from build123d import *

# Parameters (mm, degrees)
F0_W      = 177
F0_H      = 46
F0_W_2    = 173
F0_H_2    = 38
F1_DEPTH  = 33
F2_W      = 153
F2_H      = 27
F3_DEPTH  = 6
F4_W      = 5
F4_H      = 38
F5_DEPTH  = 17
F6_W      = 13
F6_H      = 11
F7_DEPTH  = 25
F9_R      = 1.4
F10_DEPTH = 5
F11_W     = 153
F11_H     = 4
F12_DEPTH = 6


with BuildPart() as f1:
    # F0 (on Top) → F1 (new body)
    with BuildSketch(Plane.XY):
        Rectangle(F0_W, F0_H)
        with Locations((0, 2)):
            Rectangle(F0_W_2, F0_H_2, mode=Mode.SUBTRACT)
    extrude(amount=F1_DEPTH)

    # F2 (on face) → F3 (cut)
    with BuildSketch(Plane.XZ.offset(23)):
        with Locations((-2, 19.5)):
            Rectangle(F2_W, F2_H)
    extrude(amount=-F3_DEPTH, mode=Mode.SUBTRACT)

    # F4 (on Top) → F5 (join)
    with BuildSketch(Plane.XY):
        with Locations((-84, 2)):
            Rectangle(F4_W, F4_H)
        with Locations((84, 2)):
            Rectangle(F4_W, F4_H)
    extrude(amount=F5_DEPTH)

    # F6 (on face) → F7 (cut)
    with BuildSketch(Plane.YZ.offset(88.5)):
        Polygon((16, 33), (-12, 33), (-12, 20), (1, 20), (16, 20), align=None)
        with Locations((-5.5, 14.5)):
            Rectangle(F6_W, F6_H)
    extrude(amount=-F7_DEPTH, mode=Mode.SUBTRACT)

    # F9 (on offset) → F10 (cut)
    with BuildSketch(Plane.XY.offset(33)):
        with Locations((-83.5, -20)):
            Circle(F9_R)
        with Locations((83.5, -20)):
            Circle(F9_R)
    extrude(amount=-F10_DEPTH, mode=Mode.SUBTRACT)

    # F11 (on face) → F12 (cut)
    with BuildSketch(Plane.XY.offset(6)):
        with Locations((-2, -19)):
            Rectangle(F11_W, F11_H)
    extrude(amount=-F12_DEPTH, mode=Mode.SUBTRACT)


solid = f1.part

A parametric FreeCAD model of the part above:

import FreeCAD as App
import Part
import Sketcher
from FreeCAD import Vector
Q = App.Units.Quantity


def add_polygon(sketch, points):
    """Adds a closed chain of lines whose ends are joined by coincident constraints."""
    first, n = sketch.GeometryCount, len(points)
    for a, b in zip(points, points[1:] + points[:1]):
        sketch.addGeometry(Part.LineSegment(App.Vector(*a, 0), App.Vector(*b, 0)), False)
    for i in range(n):
        sketch.addConstraint(Sketcher.Constraint("Coincident", first + i, 2, first + (i + 1) % n, 1))

doc = App.newDocument("Part")
body = doc.addObject("PartDesign::Body", "Body")

# Sketch on XY plane
sketch1 = body.newObject("Sketcher::SketchObject", "Sketch")
sketch1.AttachmentSupport = (doc.getObject("XY_Plane"), [""])
sketch1.MapMode = "FlatFace"
add_polygon(sketch1, [(-88, 23), (-88, -23), (88, -23), (88, 23)])  # lines 0-3
add_polygon(sketch1, [(86, -17), (-86, -17), (-86, 21), (86, 21)])  # lines 4-7
sketch1.addConstraint([
    Sketcher.Constraint("Vertical", 0),
    Sketcher.Constraint("Horizontal", 1),
    Sketcher.Constraint("Vertical", 2),
    Sketcher.Constraint("Horizontal", 3),
    Sketcher.Constraint("Horizontal", 4),
    Sketcher.Constraint("Vertical", 5),
    Sketcher.Constraint("Horizontal", 6),
    Sketcher.Constraint("Vertical", 7),
    Sketcher.Constraint("Symmetric", 0, 2, 2, 2, -1, 1),
    Sketcher.Constraint("DistanceX", 1, 1, 1, 2, Q("177 mm")),
    Sketcher.Constraint("DistanceX", 4, 2, 4, 1, Q("173 mm")),
    Sketcher.Constraint("DistanceY", 0, 2, 0, 1, Q("46 mm")),
    Sketcher.Constraint("DistanceY", 5, 1, 5, 2, Q("38 mm")),
    Sketcher.Constraint("DistanceY", 4, 2, -1, 1, Q("17 mm")),
    Sketcher.Constraint("DistanceX", 0, 2, 4, 2, Q("2 mm")),
])
pad1 = body.newObject("PartDesign::Pad", "Pad")
pad1.Profile = sketch1
pad1.Length = 33

# Sketch on XZ plane
sketch2 = body.newObject("Sketcher::SketchObject", "Sketch001")
sketch2.AttachmentSupport = (doc.getObject("XZ_Plane"), [""])
sketch2.MapMode = "FlatFace"
sketch2.AttachmentOffset = App.Placement(Vector(0, 0, 23), App.Rotation())
add_polygon(sketch2, [(-78, 33), (-78, 6), (74, 6), (74, 33)])  # lines 0-3
sketch2.addConstraint([
    Sketcher.Constraint("Vertical", 0),
    Sketcher.Constraint("Horizontal", 1),
    Sketcher.Constraint("Vertical", 2),
    Sketcher.Constraint("Horizontal", 3),
    Sketcher.Constraint("DistanceX", 1, 1, 1, 2, Q("153 mm")),
    Sketcher.Constraint("DistanceY", 0, 2, 0, 1, Q("27 mm")),
    Sketcher.Constraint("DistanceY", -1, 1, 0, 2, Q("6 mm")),
    Sketcher.Constraint("DistanceX", 0, 2, -1, 1, Q("78.5 mm")),
])
pocket1 = body.newObject("PartDesign::Pocket", "Pocket")
pocket1.Profile = sketch2
pocket1.Length = 6

# Sketch on XY plane
sketch3 = body.newObject("Sketcher::SketchObject", "Sketch002")
sketch3.AttachmentSupport = (doc.getObject("XY_Plane"), [""])
sketch3.MapMode = "FlatFace"
add_polygon(sketch3, [(-86, 21), (-86, -17), (-82, -17), (-82, 21)])  # lines 0-3
add_polygon(sketch3, [(82, 21), (82, -17), (86, -17), (86, 21)])  # lines 4-7
sketch3.addConstraint([
    Sketcher.Constraint("Vertical", 0),
    Sketcher.Constraint("Horizontal", 1),
    Sketcher.Constraint("Vertical", 2),
    Sketcher.Constraint("Horizontal", 3),
    Sketcher.Constraint("Vertical", 4),
    Sketcher.Constraint("Horizontal", 5),
    Sketcher.Constraint("Vertical", 6),
    Sketcher.Constraint("Horizontal", 7),
    Sketcher.Constraint("Symmetric", 1, 2, 4, 2, -2),
    Sketcher.Constraint("Symmetric", 3, 2, 6, 2, -2),
    Sketcher.Constraint("DistanceX", 1, 1, 1, 2, Q("5 mm")),
    Sketcher.Constraint("DistanceY", 0, 2, 0, 1, Q("38 mm")),
    Sketcher.Constraint("DistanceY", 0, 2, -1, 1, Q("17 mm")),
    Sketcher.Constraint("DistanceX", 1, 2, 4, 2, Q("163 mm")),
])
pad2 = body.newObject("PartDesign::Pad", "Pad001")
pad2.Profile = sketch3
pad2.Length = 17

# Sketch on YZ plane
sketch4 = body.newObject("Sketcher::SketchObject", "Sketch003")
sketch4.AttachmentSupport = (doc.getObject("YZ_Plane"), [""])
sketch4.MapMode = "FlatFace"
sketch4.AttachmentOffset = App.Placement(Vector(0, 0, 88.5), App.Rotation())
add_polygon(sketch4, [(16, 33), (-12, 33), (-12, 9), (1, 9), (1, 20), (16, 20)])  # lines 0-5
sketch4.addConstraint([
    Sketcher.Constraint("Horizontal", 0),
    Sketcher.Constraint("Vertical", 1),
    Sketcher.Constraint("Horizontal", 2),
    Sketcher.Constraint("Vertical", 3),
    Sketcher.Constraint("Horizontal", 4),
    Sketcher.Constraint("Vertical", 5),
    Sketcher.Constraint("Equal", 2, 5),
    Sketcher.Constraint("DistanceX", 0, 2, 0, 1, Q("28 mm")),
    Sketcher.Constraint("DistanceX", 2, 1, 2, 2, Q("13 mm")),
    Sketcher.Constraint("DistanceY", 1, 2, 1, 1, Q("24 mm")),
    Sketcher.Constraint("DistanceX", 0, 2, -1, 1, Q("12 mm")),
    Sketcher.Constraint("DistanceY", -1, 1, 0, 2, Q("33 mm")),
])
pocket2 = body.newObject("PartDesign::Pocket", "Pocket001")
pocket2.Profile = sketch4
pocket2.Length = 25

# Sketch on XY plane
sketch5 = body.newObject("Sketcher::SketchObject", "Sketch004")
sketch5.AttachmentSupport = (doc.getObject("XY_Plane"), [""])
sketch5.MapMode = "FlatFace"
sketch5.AttachmentOffset = App.Placement(Vector(0, 0, 33), App.Rotation())
sketch5.addGeometry([
    Part.Circle(Vector(-83.5, -20, 0), Vector(0, 0, 1), 1.4),
    Part.Circle(Vector(83.5, -20, 0), Vector(0, 0, 1), 1.4),
], False)
sketch5.addConstraint([
    Sketcher.Constraint("Equal", 0, 1),
    Sketcher.Constraint("Symmetric", 0, 3, 1, 3, -2),
    Sketcher.Constraint("Diameter", 0, Q("2.8 mm")),
    Sketcher.Constraint("DistanceY", 0, 3, -1, 1, Q("20 mm")),
    Sketcher.Constraint("DistanceX", 0, 3, 1, 3, Q("167 mm")),
])
pocket3 = body.newObject("PartDesign::Pocket", "Pocket002")
pocket3.Profile = sketch5
pocket3.Length = 5

# Sketch on XY plane
sketch6 = body.newObject("Sketcher::SketchObject", "Sketch005")
sketch6.AttachmentSupport = (doc.getObject("XY_Plane"), [""])
sketch6.MapMode = "FlatFace"
sketch6.AttachmentOffset = App.Placement(Vector(0, 0, 6), App.Rotation())
add_polygon(sketch6, [(-78.5, -17), (-78.5, -21), (74.5, -21), (74.5, -17)])  # lines 0-3
sketch6.addConstraint([
    Sketcher.Constraint("Vertical", 0),
    Sketcher.Constraint("Horizontal", 1),
    Sketcher.Constraint("Vertical", 2),
    Sketcher.Constraint("Horizontal", 3),
    Sketcher.Constraint("DistanceX", 1, 1, 1, 2, Q("153 mm")),
    Sketcher.Constraint("DistanceY", 0, 2, 0, 1, Q("4 mm")),
    Sketcher.Constraint("DistanceY", 0, 2, -1, 1, Q("21 mm")),
    Sketcher.Constraint("DistanceX", 0, 2, -1, 1, Q("78.5 mm")),
])
pocket4 = body.newObject("PartDesign::Pocket", "Pocket003")
pocket4.Profile = sketch6
pocket4.Length = 6

doc.recompute()
